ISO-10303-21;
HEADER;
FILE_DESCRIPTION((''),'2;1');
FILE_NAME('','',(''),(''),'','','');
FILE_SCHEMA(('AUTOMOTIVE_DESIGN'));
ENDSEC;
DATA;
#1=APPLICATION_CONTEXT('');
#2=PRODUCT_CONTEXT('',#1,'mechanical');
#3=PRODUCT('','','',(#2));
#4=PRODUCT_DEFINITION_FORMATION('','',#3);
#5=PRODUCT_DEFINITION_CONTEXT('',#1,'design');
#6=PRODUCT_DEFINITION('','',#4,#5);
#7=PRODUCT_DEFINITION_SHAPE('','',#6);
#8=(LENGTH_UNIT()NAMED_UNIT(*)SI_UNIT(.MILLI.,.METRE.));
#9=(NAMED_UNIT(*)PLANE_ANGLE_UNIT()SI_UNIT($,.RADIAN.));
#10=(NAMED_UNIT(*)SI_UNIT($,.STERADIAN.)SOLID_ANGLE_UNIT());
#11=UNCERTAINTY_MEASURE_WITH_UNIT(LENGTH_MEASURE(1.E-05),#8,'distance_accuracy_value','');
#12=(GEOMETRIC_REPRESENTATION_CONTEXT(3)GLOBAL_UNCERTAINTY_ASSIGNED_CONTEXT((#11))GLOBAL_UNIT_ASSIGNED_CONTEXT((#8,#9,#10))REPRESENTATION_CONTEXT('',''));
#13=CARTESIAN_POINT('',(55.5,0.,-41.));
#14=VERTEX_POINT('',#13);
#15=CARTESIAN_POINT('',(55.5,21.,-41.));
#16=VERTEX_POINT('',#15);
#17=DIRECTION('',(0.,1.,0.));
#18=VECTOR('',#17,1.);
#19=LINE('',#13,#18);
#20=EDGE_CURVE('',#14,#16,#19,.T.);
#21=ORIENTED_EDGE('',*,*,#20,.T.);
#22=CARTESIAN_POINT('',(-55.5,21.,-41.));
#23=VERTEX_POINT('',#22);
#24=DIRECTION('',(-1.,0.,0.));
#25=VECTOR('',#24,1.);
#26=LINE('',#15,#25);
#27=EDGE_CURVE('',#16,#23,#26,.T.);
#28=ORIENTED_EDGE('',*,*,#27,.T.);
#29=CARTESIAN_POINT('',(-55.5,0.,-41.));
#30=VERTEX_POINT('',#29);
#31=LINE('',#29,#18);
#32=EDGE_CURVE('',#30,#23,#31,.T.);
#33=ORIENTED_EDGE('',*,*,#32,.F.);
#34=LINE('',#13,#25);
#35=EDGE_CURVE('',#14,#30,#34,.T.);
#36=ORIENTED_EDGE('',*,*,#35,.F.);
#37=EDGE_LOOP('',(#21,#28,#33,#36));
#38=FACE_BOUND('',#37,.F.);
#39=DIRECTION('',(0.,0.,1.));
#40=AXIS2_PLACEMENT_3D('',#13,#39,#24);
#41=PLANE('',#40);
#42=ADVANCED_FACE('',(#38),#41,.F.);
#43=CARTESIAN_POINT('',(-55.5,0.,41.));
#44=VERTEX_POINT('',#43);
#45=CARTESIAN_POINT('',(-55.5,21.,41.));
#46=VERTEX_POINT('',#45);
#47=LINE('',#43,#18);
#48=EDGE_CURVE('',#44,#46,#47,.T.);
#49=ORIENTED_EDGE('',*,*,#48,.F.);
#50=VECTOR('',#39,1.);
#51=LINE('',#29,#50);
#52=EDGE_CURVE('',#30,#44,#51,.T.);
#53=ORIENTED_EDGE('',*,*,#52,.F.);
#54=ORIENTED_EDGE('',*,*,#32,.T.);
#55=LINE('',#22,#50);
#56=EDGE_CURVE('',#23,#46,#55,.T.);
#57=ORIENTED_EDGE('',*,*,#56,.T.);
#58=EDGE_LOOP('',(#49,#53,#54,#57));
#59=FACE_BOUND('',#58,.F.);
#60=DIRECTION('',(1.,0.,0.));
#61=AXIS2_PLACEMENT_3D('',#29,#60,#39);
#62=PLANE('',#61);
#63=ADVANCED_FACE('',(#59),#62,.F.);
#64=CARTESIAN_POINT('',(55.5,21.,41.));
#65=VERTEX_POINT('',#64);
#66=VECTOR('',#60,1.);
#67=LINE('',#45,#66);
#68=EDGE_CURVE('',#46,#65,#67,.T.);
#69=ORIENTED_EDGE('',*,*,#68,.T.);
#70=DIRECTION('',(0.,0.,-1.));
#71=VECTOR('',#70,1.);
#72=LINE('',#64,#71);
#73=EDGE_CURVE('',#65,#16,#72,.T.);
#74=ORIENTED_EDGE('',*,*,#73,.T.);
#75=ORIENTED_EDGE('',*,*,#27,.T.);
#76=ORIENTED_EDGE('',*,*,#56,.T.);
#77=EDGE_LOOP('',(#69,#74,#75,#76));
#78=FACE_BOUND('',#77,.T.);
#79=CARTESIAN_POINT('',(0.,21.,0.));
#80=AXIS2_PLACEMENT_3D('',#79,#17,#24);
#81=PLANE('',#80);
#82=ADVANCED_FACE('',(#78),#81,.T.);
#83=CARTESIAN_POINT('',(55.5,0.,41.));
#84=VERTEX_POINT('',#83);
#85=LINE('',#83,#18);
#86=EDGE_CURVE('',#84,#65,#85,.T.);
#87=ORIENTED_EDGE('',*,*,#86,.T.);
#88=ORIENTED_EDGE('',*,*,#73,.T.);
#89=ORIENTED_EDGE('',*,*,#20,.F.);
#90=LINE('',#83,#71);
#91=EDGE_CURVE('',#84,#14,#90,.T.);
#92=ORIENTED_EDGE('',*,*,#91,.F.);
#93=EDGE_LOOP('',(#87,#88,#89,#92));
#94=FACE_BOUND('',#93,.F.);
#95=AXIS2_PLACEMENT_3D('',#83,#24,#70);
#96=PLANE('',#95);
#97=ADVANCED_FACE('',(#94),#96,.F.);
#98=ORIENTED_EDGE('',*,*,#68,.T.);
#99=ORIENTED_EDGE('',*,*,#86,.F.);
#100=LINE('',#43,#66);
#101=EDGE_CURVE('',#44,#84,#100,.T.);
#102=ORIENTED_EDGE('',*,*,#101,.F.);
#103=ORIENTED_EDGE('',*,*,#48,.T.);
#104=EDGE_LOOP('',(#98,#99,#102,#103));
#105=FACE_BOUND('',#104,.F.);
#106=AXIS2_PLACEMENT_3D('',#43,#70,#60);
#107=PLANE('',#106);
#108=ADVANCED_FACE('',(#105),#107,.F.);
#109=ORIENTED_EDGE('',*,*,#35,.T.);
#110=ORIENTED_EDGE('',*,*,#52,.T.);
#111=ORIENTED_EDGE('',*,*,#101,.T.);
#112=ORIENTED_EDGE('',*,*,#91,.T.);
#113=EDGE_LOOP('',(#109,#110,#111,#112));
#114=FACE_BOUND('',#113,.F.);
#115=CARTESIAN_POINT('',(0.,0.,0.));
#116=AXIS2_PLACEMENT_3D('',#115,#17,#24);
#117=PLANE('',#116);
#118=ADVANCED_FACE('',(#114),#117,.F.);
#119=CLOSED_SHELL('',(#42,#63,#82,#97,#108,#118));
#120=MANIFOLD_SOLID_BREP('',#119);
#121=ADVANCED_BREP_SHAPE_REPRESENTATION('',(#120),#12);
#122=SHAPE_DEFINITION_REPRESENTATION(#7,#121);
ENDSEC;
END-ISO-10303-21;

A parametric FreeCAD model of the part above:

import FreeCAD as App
import Part
import Sketcher
from FreeCAD import Vector
Q = App.Units.Quantity

doc = App.newDocument("Part")
params = doc.addObject("Spreadsheet::Sheet", "Params")
for row, (alias, value) in enumerate([
    ("sketch1_width", "111 mm"),
    ("sketch1_height", "82 mm"),
    ("pad1_length", "21 mm"),
], start=1):
    params.set(f"A{row}", alias)
    params.set(f"B{row}", "=" + value)
    params.setAlias(f"B{row}", alias)

body = doc.addObject("PartDesign::Body", "Body")

# Sketch on XZ plane
sketch1 = body.newObject("Sketcher::SketchObject", "Sketch")
sketch1.AttachmentSupport = (doc.getObject("XZ_Plane"), [""])
sketch1.MapMode = "FlatFace"
sketch1.addGeometry(Part.LineSegment(Vector(56, 41, 0), Vector(56, -41, 0)), False)
sketch1.addGeometry(Part.LineSegment(Vector(56, -41, 0), Vector(-56, -41, 0)), False)
sketch1.addGeometry(Part.LineSegment(Vector(-56, -41, 0), Vector(-56, 41, 0)), False)
sketch1.addGeometry(Part.LineSegment(Vector(-56, 41, 0), Vector(56, 41, 0)), False)
sketch1.addConstraint(Sketcher.Constraint("Coincident", 0, 2, 1, 1))
sketch1.addConstraint(Sketcher.Constraint("Coincident", 1, 2, 2, 1))
sketch1.addConstraint(Sketcher.Constraint("Coincident", 2, 2, 3, 1))
sketch1.addConstraint(Sketcher.Constraint("Coincident", 3, 2, 0, 1))
sketch1.addConstraint(Sketcher.Constraint("Vertical", 0))
sketch1.addConstraint(Sketcher.Constraint("Horizontal", 1))
sketch1.addConstraint(Sketcher.Constraint("Vertical", 2))
sketch1.addConstraint(Sketcher.Constraint("Horizontal", 3))
sketch1.addConstraint(Sketcher.Constraint("Symmetric", 0, 2, 2, 2, -1, 1))
sketch1.addConstraint(Sketcher.Constraint("DistanceX", 1, 2, 1, 1, Q("111 mm")))
sketch1.addConstraint(Sketcher.Constraint("DistanceY", 0, 2, 0, 1, Q("82 mm")))
sketch1.setExpression("Constraints[9]", "Params.sketch1_width")
sketch1.setExpression("Constraints[10]", "Params.sketch1_height")
pad1 = body.newObject("PartDesign::Pad", "Pad")
pad1.Profile = sketch1
pad1.setExpression("Length", "Params.pad1_length")
pad1.Reversed = True

doc.recompute()
